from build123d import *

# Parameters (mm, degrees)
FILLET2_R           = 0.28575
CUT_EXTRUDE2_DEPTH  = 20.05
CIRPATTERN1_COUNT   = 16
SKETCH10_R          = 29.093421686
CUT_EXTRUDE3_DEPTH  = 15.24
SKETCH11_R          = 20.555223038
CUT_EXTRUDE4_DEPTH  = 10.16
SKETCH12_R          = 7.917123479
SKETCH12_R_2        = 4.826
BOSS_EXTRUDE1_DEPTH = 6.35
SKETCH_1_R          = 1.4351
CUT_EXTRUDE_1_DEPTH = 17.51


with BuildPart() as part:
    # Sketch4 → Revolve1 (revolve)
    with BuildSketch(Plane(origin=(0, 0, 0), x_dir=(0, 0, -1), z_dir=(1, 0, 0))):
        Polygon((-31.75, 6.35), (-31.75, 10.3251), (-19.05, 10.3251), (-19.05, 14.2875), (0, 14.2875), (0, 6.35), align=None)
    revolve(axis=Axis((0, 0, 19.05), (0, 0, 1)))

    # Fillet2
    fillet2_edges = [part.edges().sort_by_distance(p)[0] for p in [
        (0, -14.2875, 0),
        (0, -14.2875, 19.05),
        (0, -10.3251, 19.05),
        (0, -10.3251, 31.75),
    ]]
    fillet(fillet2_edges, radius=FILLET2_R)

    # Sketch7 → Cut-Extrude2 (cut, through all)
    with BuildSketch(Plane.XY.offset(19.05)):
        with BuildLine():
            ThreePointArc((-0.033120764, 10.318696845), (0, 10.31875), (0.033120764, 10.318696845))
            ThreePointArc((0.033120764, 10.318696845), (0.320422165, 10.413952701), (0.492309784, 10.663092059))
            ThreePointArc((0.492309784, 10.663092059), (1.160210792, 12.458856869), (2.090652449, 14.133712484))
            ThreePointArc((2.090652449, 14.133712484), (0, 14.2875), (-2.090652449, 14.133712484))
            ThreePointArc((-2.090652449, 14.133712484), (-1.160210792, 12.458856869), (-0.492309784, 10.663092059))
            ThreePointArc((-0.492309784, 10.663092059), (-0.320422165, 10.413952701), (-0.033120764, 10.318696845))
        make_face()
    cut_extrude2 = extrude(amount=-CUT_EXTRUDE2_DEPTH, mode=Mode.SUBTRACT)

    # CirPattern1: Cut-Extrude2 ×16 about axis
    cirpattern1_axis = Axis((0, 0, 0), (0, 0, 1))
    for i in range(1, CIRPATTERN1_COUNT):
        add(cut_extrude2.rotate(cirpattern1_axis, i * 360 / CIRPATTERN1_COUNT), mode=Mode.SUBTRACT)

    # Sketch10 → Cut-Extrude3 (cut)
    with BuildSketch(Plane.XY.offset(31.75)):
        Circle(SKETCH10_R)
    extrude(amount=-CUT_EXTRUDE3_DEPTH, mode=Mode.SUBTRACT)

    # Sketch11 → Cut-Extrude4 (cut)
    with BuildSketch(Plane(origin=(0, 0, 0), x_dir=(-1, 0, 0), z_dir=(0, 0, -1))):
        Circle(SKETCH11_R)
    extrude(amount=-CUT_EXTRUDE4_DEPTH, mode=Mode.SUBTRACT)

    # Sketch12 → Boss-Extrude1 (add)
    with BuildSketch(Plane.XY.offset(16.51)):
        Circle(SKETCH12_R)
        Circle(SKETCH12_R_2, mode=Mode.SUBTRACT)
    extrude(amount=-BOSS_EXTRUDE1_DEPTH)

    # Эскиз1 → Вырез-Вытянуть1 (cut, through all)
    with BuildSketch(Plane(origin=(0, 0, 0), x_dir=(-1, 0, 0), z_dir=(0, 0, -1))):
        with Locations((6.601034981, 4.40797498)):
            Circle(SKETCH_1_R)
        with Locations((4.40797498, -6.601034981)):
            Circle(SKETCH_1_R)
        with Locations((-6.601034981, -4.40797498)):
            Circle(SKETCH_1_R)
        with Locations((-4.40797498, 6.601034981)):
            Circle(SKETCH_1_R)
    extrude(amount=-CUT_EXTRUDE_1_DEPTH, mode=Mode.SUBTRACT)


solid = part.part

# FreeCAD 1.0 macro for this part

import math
import FreeCAD as App
import Part
import Sketcher

V = App.Vector
Q = App.Units.Quantity


def edges_at(feature, points):
    """Names of the edges that pass closest to the given points."""
    edges = feature.Shape.Edges
    near = lambda p: min(range(len(edges)), key=lambda i: edges[i].distToShape(Part.Vertex(*p))[0])
    return sorted({f"Edge{near(p) + 1}" for p in points})


def add_polygon(sketch, points):
    """Adds a closed chain of lines whose ends are joined by coincident constraints."""
    first, n = sketch.GeometryCount, len(points)
    for a, b in zip(points, points[1:] + points[:1]):
        sketch.addGeometry(Part.LineSegment(App.Vector(*a, 0), App.Vector(*b, 0)), False)
    for i in range(n):
        sketch.addConstraint(Sketcher.Constraint("Coincident", first + i, 2, first + (i + 1) % n, 1))

doc = App.newDocument("Part")
body = doc.addObject("PartDesign::Body", "Body")

sketch1 = body.newObject("Sketcher::SketchObject", "Sketch")
sketch1.AttachmentSupport = (doc.getObject("YZ_Plane"), [""])
sketch1.MapMode = "FlatFace"
add_polygon(sketch1, [(10.3, 31.8), (6.3, 31.8), (6.3, 0), (14.3, 0), (14.3, 19.1), (10.3, 19.1)])
sketch1.addConstraint(Sketcher.Constraint("Horizontal", 0))
sketch1.addConstraint(Sketcher.Constraint("Vertical", 1))
sketch1.addConstraint(Sketcher.Constraint("Horizontal", 2))
sketch1.addConstraint(Sketcher.Constraint("Vertical", 3))
sketch1.addConstraint(Sketcher.Constraint("Horizontal", 4))
sketch1.addConstraint(Sketcher.Constraint("Vertical", 5))
sketch1.addConstraint(Sketcher.Constraint("PointOnObject", 1, 2, -1))
sketch1.addConstraint(Sketcher.Constraint("DistanceY", 5, 1, 5, 2, Q("0.5 in")))
sketch1.addConstraint(Sketcher.Constraint("DistanceY", 1, 2, 1, 1, Q("1.25 in")))
sketch1.addConstraint(Sketcher.Constraint("DistanceX", 2, 1, 2, 2, Q("0.3125 in")))
sketch1.addConstraint(Sketcher.Constraint("DistanceX", 4, 2, 4, 1, Q("0.156 in")))
sketch1.addConstraint(Sketcher.Constraint("DistanceX", -1, 1, 0, 2, Q("0.25 in")))
revolution = body.newObject("PartDesign::Revolution", "Revolution")
revolution.Profile = sketch1
revolution.ReferenceAxis = (sketch1, ["V_Axis"])
revolution.Angle = 360
doc.recompute()

fillet = body.newObject("PartDesign::Fillet", "Fillet")
fillet.Base = (revolution, edges_at(revolution, [
    (0, -14.287, 0),
    (0, -14.287, 19.05),
    (0, -10.325, 19.05),
    (0, -10.325, 31.75),
]))
fillet.Radius = 0.28575

sketch2 = body.newObject("Sketcher::SketchObject", "Sketch001")
sketch2.AttachmentSupport = (doc.getObject("XY_Plane"), [""])
sketch2.MapMode = "FlatFace"
sketch2.AttachmentOffset = App.Placement(V(0, 0, 0.75 * 25.4), App.Rotation())
sketch2.addGeometry(Part.ArcOfCircle(Part.Circle(V(0, 0, 0), V(0, 0, 1), 10.32), math.radians(89.82), math.radians(90.18)), False)
sketch2.addGeometry(Part.ArcOfCircle(Part.Circle(V(0.03, 10.79, 0), V(0, 0, 1), 0.48), math.radians(-90), math.radians(-16)), False)
sketch2.addGeometry(Part.ArcOfCircle(Part.Circle(V(12.7, 7.15, 0), V(0, 0, 1), 12.7), math.radians(146.62), math.radians(163.92)), False)
sketch2.addGeometry(Part.ArcOfCircle(Part.Circle(V(0, 0, 0), V(0, 0, 1), 14.29), math.radians(81.59), math.radians(98.41)), False)
sketch2.addGeometry(Part.ArcOfCircle(Part.Circle(V(-12.7, 7.15, 0), V(0, 0, 1), 12.7), math.radians(16.08), math.radians(33.38)), False)
sketch2.addGeometry(Part.ArcOfCircle(Part.Circle(V(-0.03, 10.79, 0), V(0, 0, 1), 0.48), math.radians(-164), math.radians(-90)), False)
sketch2.addConstraint(Sketcher.Constraint("Tangent", 0, 1, 1, 1))
sketch2.addConstraint(Sketcher.Constraint("Tangent", 1, 2, 2, 2))
sketch2.addConstraint(Sketcher.Constraint("Coincident", 2, 1, 3, 1))
sketch2.addConstraint(Sketcher.Constraint("Coincident", 3, 2, 4, 2))
sketch2.addConstraint(Sketcher.Constraint("Tangent", 4, 1, 5, 1))
sketch2.addConstraint(Sketcher.Constraint("Tangent", 5, 2, 0, 2))
sketch2.addConstraint(Sketcher.Constraint("Coincident", 3, 3, -1, 1))
sketch2.addConstraint(Sketcher.Constraint("Equal", 2, 4))
sketch2.addConstraint(Sketcher.Constraint("Equal", 1, 5))
sketch2.addConstraint(Sketcher.Constraint("Symmetric", 2, 3, 4, 3, -2))
sketch2.addConstraint(Sketcher.Constraint("PointOnObject", 0, 3, -2))
sketch2.addConstraint(Sketcher.Constraint("Radius", 2, Q("0.5 in")))
sketch2.addConstraint(Sketcher.Constraint("Radius", 3, Q("0.5625 in")))
sketch2.addConstraint(Sketcher.Constraint("Radius", 0, 10.318764))
sketch2.addConstraint(Sketcher.Constraint("Radius", 1, 0.476285))
sketch2.addConstraint(Sketcher.Constraint("DistanceX", 5, 3, 1, 3, 0.069299))
sketch2.addConstraint(Sketcher.Constraint("DistanceX", 5, 3, 2, 1, 2.125302))
sketch2.addConstraint(Sketcher.Constraint("DistanceY", -1, 1, 1, 3, 10.794979))
pocket1 = body.newObject("PartDesign::Pocket", "Pocket")
pocket1.Profile = sketch2
pocket1.Type = "ThroughAll"
doc.recompute()

polarpattern = body.newObject("PartDesign::PolarPattern", "PolarPattern")
polarpattern.Originals = [pocket1]
polarpattern.Axis = (doc.getObject("Z_Axis"), [""])
polarpattern.Angle = 360
polarpattern.Occurrences = 16
body.Tip = polarpattern

sketch3 = body.newObject("Sketcher::SketchObject", "Sketch002")
sketch3.AttachmentSupport = (doc.getObject("XY_Plane"), [""])
sketch3.MapMode = "FlatFace"
sketch3.AttachmentOffset = App.Placement(V(0, 0, 1.25 * 25.4), App.Rotation())
sketch3.addGeometry(Part.Circle(V(0, 0, 0), V(0, 0, 1), 29), False)
sketch3.addConstraint(Sketcher.Constraint("Coincident", 0, 3, -1, 1))
sketch3.addConstraint(Sketcher.Constraint("Diameter", 0, 58.186843))
pocket2 = body.newObject("PartDesign::Pocket", "Pocket001")
pocket2.Profile = sketch3
pocket2.Length = Q("0.6 in")

sketch4 = body.newObject("Sketcher::SketchObject", "Sketch003")
sketch4.AttachmentSupport = (doc.getObject("XY_Plane"), [""])
sketch4.MapMode = "FlatFace"
sketch4.addGeometry(Part.Circle(V(0, 0, 0), V(0, 0, 1), 21), False)
sketch4.addConstraint(Sketcher.Constraint("Coincident", 0, 3, -1, 1))
sketch4.addConstraint(Sketcher.Constraint("Diameter", 0, 41.110446))
pocket3 = body.newObject("PartDesign::Pocket", "Pocket002")
pocket3.Profile = sketch4
pocket3.Length = Q("0.4 in")
pocket3.Reversed = True

sketch5 = body.newObject("Sketcher::SketchObject", "Sketch004")
sketch5.AttachmentSupport = (doc.getObject("XY_Plane"), [""])
sketch5.MapMode = "FlatFace"
sketch5.AttachmentOffset = App.Placement(V(0, 0, 0.65 * 25.4), App.Rotation())
sketch5.addGeometry(Part.Circle(V(0, 0, 0), V(0, 0, 1), 7.9), False)
sketch5.addGeometry(Part.Circle(V(0, 0, 0), V(0, 0, 1), 4.8), False)
sketch5.addConstraint(Sketcher.Constraint("Coincident", 0, 3, -1, 1))
sketch5.addConstraint(Sketcher.Constraint("Coincident", 1, 3, -1, 1))
sketch5.addConstraint(Sketcher.Constraint("Diameter", 1, Q("0.38 in")))
sketch5.addConstraint(Sketcher.Constraint("Diameter", 0, 15.834247))
pad1 = body.newObject("PartDesign::Pad", "Pad")
pad1.Profile = sketch5
pad1.Length = Q("0.25 in")
pad1.Reversed = True

sketch6 = body.newObject("Sketcher::SketchObject", "Sketch005")
sketch6.AttachmentSupport = (doc.getObject("XY_Plane"), [""])
sketch6.MapMode = "FlatFace"
sketch6.addGeometry(Part.Circle(V(-6.6, 4.4, 0), V(0, 0, 1), 1.4), False)
sketch6.addGeometry(Part.Circle(V(-4.4, -6.6, 0), V(0, 0, 1), 1.4), False)
sketch6.addGeometry(Part.Circle(V(6.6, -4.4, 0), V(0, 0, 1), 1.4), False)
sketch6.addGeometry(Part.Circle(V(4.4, 6.6, 0), V(0, 0, 1), 1.4), False)
sketch6.addConstraint(Sketcher.Constraint("Equal", 0, 1))
sketch6.addConstraint(Sketcher.Constraint("Equal", 1, 2))
sketch6.addConstraint(Sketcher.Constraint("Equal", 2, 3))
sketch6.addConstraint(Sketcher.Constraint("Symmetric", 0, 3, 2, 3, -1, 1))
sketch6.addConstraint(Sketcher.Constraint("Symmetric", 1, 3, 3, 3, -1, 1))
sketch6.addConstraint(Sketcher.Constraint("Diameter", 0, Q("0.113 in")))
sketch6.addConstraint(Sketcher.Constraint("DistanceX", 0, 3, 1, 3, 2.19306))
sketch6.addConstraint(Sketcher.Constraint("DistanceY", 1, 3, 0, 3, 11.00901))
sketch6.addConstraint(Sketcher.Constraint("DistanceX", 1, 3, 2, 3, 11.00901))
sketch6.addConstraint(Sketcher.Constraint("DistanceY", 1, 3, 2, 3, 2.19306))
pocket4 = body.newObject("PartDesign::Pocket", "Pocket003")
pocket4.Profile = sketch6
pocket4.Type = "ThroughAll"
pocket4.Reversed = True

doc.recompute()
